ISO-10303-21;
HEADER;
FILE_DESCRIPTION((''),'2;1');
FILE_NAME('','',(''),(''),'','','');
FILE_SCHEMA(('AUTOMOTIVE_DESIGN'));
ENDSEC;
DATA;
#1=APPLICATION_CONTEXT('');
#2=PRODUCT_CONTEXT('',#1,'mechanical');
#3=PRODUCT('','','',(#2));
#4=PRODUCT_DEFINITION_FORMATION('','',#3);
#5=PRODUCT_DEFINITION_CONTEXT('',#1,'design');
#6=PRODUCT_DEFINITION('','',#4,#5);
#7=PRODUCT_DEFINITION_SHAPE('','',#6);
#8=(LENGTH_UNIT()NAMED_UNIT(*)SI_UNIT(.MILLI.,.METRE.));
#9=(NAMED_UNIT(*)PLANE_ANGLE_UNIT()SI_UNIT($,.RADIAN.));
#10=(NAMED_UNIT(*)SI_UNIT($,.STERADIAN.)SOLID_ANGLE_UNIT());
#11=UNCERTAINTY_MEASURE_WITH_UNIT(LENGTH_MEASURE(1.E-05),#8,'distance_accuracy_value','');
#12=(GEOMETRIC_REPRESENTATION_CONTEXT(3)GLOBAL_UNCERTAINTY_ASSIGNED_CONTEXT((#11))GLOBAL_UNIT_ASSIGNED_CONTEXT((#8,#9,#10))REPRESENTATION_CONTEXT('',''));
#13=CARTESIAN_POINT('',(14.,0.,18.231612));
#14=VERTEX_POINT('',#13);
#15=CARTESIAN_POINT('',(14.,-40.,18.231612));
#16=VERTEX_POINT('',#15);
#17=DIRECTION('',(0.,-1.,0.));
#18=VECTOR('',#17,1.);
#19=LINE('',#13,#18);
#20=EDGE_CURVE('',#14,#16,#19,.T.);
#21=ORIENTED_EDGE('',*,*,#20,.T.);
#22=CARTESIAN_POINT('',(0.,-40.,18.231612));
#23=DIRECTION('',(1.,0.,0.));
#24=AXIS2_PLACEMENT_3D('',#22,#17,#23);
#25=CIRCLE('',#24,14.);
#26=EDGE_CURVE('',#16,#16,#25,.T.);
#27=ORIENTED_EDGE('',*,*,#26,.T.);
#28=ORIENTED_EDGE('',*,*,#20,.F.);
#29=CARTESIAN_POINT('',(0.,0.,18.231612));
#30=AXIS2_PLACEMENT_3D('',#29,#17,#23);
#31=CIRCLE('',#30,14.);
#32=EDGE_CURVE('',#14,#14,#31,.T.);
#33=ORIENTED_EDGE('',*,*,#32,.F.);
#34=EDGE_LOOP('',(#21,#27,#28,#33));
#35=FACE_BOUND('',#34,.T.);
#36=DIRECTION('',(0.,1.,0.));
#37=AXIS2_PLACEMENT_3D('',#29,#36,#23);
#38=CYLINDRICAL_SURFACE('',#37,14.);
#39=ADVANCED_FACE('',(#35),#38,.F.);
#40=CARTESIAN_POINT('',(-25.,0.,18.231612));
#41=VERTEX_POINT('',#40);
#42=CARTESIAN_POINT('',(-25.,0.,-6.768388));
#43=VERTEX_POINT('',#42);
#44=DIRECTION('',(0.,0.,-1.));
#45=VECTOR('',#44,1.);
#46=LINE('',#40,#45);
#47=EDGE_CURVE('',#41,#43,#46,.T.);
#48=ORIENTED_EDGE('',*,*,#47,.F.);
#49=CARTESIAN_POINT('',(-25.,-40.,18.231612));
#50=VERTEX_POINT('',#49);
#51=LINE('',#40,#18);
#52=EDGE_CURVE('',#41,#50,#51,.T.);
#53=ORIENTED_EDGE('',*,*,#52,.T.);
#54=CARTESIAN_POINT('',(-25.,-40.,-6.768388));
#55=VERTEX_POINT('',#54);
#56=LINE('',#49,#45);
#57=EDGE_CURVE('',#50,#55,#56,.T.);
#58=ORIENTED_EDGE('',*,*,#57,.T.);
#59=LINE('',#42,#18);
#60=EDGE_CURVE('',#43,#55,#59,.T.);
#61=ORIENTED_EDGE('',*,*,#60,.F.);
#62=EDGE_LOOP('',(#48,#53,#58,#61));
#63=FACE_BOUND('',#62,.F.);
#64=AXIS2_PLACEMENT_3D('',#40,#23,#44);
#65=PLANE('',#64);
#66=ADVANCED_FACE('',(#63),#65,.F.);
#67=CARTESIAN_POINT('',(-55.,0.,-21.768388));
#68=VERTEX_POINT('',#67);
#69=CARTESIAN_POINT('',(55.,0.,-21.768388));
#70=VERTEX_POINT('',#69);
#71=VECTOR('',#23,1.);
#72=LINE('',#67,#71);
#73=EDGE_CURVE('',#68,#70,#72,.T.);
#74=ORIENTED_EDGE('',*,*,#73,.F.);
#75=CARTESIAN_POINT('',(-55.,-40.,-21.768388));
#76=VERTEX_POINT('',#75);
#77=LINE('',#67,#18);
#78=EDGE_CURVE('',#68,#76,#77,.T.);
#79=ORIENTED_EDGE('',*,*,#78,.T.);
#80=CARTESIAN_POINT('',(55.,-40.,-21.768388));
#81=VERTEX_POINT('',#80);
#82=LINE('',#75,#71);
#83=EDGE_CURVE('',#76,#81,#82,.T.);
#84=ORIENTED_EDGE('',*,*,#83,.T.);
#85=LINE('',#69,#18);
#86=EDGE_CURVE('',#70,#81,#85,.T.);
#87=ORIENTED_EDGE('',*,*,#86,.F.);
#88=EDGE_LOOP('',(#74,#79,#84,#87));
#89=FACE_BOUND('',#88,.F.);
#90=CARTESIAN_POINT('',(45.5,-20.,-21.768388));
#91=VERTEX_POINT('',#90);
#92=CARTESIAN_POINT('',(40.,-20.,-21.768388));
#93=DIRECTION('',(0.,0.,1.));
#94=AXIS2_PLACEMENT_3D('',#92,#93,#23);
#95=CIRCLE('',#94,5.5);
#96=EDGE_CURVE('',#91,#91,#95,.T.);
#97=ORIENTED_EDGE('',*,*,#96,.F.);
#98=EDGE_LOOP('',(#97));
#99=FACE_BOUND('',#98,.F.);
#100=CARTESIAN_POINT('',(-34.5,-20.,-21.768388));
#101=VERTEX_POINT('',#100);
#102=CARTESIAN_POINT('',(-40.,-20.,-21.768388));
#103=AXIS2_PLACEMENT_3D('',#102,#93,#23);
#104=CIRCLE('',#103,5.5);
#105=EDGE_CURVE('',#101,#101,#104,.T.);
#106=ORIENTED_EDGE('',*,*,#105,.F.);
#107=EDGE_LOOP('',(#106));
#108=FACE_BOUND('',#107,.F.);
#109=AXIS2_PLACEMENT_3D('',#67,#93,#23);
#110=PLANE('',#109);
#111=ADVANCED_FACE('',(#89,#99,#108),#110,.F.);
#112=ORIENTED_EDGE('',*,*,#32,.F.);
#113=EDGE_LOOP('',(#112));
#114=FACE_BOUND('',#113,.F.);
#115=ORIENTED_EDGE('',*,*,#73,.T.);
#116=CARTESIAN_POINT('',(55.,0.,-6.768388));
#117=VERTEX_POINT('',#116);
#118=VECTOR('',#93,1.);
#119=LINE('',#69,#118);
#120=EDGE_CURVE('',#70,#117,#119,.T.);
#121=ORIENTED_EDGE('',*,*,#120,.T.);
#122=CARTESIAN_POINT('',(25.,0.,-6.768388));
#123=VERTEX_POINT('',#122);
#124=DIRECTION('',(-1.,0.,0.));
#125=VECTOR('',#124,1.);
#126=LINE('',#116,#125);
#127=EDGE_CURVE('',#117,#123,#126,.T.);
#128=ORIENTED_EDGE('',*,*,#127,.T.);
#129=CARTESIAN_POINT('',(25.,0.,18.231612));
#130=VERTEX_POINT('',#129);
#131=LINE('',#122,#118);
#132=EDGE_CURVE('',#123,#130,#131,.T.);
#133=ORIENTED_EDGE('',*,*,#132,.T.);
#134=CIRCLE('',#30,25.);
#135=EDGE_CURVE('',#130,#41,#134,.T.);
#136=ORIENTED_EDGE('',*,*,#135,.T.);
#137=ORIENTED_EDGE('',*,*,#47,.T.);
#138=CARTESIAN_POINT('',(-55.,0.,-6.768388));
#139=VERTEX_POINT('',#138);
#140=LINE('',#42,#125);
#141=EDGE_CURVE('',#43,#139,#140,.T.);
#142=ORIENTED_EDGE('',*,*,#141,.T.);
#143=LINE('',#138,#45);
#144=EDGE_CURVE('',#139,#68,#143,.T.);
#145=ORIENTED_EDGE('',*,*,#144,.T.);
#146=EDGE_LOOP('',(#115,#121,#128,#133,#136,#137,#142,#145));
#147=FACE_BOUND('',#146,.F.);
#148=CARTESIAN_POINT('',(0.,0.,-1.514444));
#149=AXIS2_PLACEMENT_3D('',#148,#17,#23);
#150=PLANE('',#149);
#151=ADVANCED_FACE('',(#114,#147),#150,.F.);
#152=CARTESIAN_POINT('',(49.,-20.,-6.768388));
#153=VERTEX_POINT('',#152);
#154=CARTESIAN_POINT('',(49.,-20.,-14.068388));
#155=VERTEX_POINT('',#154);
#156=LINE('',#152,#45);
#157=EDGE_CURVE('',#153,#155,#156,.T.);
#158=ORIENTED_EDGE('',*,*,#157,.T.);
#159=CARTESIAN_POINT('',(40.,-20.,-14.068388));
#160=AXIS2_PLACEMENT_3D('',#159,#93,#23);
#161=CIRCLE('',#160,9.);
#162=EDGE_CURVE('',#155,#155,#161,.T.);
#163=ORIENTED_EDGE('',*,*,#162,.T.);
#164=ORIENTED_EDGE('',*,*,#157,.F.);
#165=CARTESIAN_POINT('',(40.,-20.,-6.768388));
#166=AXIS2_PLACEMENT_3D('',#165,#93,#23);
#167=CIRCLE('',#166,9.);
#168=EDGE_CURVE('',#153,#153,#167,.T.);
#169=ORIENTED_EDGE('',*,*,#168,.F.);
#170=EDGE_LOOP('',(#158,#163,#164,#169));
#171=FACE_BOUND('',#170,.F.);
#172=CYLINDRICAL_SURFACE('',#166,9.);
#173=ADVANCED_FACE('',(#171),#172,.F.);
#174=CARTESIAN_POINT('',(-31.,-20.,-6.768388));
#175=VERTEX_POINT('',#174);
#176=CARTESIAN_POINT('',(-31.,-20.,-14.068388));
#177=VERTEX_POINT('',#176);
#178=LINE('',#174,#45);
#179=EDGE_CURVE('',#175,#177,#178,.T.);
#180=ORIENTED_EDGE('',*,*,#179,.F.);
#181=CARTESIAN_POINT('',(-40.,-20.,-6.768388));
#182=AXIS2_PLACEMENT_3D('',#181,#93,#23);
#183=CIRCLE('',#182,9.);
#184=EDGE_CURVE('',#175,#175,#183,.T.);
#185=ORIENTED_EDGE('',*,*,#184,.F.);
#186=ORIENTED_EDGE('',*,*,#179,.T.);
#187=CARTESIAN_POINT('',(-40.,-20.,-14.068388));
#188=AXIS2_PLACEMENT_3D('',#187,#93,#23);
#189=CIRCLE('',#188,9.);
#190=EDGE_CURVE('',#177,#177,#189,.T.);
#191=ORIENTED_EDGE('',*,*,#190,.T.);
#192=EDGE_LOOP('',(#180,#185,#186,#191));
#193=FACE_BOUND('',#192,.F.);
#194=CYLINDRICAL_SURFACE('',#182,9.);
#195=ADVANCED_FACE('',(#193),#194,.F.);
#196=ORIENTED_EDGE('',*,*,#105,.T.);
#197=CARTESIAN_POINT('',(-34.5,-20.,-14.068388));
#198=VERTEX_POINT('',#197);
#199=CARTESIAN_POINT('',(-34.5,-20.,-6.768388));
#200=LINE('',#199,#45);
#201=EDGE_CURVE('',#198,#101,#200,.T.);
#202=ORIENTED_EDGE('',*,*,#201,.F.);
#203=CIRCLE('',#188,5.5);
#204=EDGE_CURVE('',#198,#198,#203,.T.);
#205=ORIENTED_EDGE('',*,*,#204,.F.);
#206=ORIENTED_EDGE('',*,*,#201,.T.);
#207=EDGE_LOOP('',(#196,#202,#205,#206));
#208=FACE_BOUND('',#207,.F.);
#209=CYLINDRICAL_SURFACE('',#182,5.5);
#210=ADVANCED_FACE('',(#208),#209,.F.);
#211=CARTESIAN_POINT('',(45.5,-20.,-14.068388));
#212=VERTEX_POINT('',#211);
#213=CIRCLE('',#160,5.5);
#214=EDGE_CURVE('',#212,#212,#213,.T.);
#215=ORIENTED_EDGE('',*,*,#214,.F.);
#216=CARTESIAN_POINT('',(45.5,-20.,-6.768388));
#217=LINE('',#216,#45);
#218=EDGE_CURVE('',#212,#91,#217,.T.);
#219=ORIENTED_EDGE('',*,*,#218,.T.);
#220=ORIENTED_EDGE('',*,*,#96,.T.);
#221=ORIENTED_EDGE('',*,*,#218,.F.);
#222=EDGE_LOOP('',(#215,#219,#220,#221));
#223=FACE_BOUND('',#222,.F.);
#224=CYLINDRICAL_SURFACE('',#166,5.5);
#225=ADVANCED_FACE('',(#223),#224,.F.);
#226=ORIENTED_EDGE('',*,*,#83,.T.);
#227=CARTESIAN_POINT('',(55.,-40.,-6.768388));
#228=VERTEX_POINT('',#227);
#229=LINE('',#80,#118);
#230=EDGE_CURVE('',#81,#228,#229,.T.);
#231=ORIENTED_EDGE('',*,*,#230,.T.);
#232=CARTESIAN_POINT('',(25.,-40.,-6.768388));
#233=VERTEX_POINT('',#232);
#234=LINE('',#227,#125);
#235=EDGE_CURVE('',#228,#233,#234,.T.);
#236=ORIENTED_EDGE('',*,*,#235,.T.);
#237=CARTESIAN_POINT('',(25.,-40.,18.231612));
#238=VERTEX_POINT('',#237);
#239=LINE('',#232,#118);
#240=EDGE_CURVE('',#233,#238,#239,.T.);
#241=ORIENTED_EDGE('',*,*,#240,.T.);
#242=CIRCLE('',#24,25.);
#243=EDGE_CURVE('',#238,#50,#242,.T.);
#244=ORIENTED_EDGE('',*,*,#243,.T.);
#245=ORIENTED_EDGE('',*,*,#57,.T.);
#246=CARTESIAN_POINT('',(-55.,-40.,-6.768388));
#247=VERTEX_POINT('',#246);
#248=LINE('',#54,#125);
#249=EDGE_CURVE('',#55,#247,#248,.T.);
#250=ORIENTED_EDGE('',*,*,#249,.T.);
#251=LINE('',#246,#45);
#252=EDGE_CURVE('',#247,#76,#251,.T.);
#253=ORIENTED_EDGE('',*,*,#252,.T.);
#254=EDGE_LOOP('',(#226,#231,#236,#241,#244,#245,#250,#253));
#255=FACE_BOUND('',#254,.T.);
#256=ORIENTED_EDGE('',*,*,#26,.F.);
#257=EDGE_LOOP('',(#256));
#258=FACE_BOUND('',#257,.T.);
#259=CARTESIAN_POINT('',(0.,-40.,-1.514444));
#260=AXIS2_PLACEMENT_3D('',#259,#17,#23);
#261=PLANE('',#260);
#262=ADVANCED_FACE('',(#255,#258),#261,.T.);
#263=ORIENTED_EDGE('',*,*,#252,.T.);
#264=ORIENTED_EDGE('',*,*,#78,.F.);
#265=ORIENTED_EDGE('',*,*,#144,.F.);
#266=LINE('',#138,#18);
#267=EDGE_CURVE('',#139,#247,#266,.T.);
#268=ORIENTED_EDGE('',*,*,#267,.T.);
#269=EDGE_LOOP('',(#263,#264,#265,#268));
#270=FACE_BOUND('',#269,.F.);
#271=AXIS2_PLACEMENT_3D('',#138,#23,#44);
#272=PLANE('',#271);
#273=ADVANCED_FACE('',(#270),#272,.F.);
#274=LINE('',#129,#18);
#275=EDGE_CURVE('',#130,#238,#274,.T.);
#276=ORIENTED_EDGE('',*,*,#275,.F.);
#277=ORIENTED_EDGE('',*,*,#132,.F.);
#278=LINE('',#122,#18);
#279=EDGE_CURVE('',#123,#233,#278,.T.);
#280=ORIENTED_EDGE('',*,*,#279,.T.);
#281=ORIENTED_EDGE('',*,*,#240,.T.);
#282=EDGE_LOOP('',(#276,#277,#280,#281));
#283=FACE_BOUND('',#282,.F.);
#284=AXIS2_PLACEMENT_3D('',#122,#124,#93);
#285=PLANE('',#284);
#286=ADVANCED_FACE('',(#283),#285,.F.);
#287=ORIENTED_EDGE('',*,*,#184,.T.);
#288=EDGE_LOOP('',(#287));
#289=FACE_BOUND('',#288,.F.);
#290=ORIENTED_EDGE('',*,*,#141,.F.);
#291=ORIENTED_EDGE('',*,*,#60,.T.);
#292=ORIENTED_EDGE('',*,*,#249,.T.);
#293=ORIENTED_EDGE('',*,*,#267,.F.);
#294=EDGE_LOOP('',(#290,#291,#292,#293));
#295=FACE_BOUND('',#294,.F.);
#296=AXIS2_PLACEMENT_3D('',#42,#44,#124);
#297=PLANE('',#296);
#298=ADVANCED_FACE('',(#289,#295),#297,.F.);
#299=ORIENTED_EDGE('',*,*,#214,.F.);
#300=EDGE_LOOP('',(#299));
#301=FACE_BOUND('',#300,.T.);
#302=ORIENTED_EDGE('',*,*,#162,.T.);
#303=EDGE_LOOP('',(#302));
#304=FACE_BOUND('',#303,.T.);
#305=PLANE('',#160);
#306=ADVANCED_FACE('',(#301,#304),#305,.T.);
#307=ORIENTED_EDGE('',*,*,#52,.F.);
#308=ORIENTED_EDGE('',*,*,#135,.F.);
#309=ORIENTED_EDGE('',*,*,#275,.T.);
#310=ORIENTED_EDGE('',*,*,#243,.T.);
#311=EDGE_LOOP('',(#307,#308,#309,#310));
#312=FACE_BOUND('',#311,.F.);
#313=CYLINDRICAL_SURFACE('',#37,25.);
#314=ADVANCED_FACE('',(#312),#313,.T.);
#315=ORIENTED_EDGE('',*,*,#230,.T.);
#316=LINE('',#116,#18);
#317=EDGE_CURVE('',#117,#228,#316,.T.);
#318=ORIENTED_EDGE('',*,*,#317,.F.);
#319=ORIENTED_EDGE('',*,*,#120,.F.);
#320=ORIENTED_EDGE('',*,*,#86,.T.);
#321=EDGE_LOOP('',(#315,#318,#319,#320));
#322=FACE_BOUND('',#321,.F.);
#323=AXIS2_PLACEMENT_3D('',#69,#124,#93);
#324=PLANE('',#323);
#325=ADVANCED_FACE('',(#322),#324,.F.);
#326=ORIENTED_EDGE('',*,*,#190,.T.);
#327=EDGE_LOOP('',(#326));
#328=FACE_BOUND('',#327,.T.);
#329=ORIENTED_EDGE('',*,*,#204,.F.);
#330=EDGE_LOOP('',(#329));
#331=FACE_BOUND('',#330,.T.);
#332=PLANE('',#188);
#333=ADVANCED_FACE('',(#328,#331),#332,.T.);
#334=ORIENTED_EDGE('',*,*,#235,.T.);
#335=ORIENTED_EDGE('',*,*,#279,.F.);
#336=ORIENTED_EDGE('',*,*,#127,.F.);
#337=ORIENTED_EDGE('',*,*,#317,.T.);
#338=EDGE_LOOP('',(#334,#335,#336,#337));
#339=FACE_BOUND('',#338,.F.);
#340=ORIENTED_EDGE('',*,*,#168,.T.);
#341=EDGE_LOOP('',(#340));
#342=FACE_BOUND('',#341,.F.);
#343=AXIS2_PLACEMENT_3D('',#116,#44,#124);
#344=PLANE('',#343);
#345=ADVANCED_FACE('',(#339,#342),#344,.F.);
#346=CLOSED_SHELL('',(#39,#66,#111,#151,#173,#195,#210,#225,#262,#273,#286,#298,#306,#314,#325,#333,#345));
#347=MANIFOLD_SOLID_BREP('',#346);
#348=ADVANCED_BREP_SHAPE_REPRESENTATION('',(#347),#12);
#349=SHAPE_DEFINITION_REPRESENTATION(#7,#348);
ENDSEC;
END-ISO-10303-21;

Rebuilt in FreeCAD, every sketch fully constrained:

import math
import FreeCAD as App
import Part
import Sketcher
from FreeCAD import Vector

doc = App.newDocument("Part")
body = doc.addObject("PartDesign::Body", "Body")

# Sketch on XZ plane
sketch1 = body.newObject("Sketcher::SketchObject", "Sketch")
sketch1.AttachmentSupport = (doc.getObject("XZ_Plane"), [""])
sketch1.MapMode = "FlatFace"
sketch1.addGeometry([
    Part.LineSegment(Vector(-55, -7, 0), Vector(-55, -22, 0)),  # 0
    Part.LineSegment(Vector(-55, -22, 0), Vector(55, -22, 0)),  # 1
    Part.LineSegment(Vector(55, -22, 0), Vector(55, -7, 0)),  # 2
    Part.LineSegment(Vector(55, -7, 0), Vector(25, -7, 0)),  # 3
    Part.LineSegment(Vector(25, -7, 0), Vector(25, 18, 0)),  # 4
    Part.ArcOfCircle(Part.Circle(Vector(0, 18, 0), Vector(0, 0, 1), 25), math.radians(0), math.radians(180)),  # 5
    Part.LineSegment(Vector(-25, 18, 0), Vector(-25, -7, 0)),  # 6
    Part.LineSegment(Vector(-25, -7, 0), Vector(-55, -7, 0)),  # 7
    Part.Circle(Vector(0, 18, 0), Vector(0, 0, 1), 14),  # 8
], False)
sketch1.addConstraint([
    Sketcher.Constraint("Coincident", 0, 2, 1, 1),
    Sketcher.Constraint("Coincident", 1, 2, 2, 1),
    Sketcher.Constraint("Coincident", 2, 2, 3, 1),
    Sketcher.Constraint("Coincident", 3, 2, 4, 1),
    Sketcher.Constraint("Tangent", 4, 2, 5, 1),
    Sketcher.Constraint("Tangent", 5, 2, 6, 1),
    Sketcher.Constraint("Coincident", 6, 2, 7, 1),
    Sketcher.Constraint("Coincident", 7, 2, 0, 1),
    Sketcher.Constraint("Vertical", 0),
    Sketcher.Constraint("Horizontal", 1),
    Sketcher.Constraint("Vertical", 2),
    Sketcher.Constraint("Horizontal", 3),
    Sketcher.Constraint("Vertical", 4),
    Sketcher.Constraint("Vertical", 6),
    Sketcher.Constraint("Horizontal", 7),
    Sketcher.Constraint("Coincident", 8, 3, 5, 3),
    Sketcher.Constraint("Symmetric", 3, 2, 6, 2, -2),
    Sketcher.Constraint("Equal", 3, 7),
    Sketcher.Constraint("Diameter", 8, 28.0),
    Sketcher.Constraint("Radius", 5, 25.0),
    Sketcher.Constraint("DistanceX", 1, 1, 1, 2, 110.0),
    Sketcher.Constraint("DistanceY", 0, 2, 0, 1, 15.0),
    Sketcher.Constraint("DistanceY", 4, 1, 4, 2, 25.0),
    Sketcher.Constraint("DistanceY", -1, 1, 5, 3, 18.231612),
])
pad1 = body.newObject("PartDesign::Pad", "Pad")
pad1.Profile = sketch1
pad1.Length = 40

# Sketch on XY plane
sketch2 = body.newObject("Sketcher::SketchObject", "Sketch001")
sketch2.AttachmentSupport = (doc.getObject("XY_Plane"), [""])
sketch2.MapMode = "FlatFace"
sketch2.AttachmentOffset = App.Placement(Vector(0, 0, -6.768388), App.Rotation())
sketch2.addGeometry([
    Part.Circle(Vector(40, -20, 0), Vector(0, 0, 1), 6),
    Part.Circle(Vector(-40, -20, 0), Vector(0, 0, 1), 6),
], False)
sketch2.addConstraint([
    Sketcher.Constraint("Equal", 0, 1),
    Sketcher.Constraint("Symmetric", 0, 3, 1, 3, -2),
    Sketcher.Constraint("Diameter", 0, 11.0),
    Sketcher.Constraint("DistanceX", -1, 1, 0, 3, 40.0),
    Sketcher.Constraint("DistanceY", 0, 3, -1, 1, 20.0),
])
pocket1 = body.newObject("PartDesign::Pocket", "Pocket")
pocket1.Profile = sketch2
pocket1.Length = 25

# Sketch on XY plane
sketch3 = body.newObject("Sketcher::SketchObject", "Sketch002")
sketch3.AttachmentSupport = (doc.getObject("XY_Plane"), [""])
sketch3.MapMode = "FlatFace"
sketch3.AttachmentOffset = App.Placement(Vector(0, 0, -6.768388), App.Rotation())
sketch3.addGeometry([
    Part.Circle(Vector(-40, -20, 0), Vector(0, 0, 1), 9),
    Part.Circle(Vector(-40, -20, 0), Vector(0, 0, 1), 6),
    Part.Circle(Vector(40, -20, 0), Vector(0, 0, 1), 9),
    Part.Circle(Vector(40, -20, 0), Vector(0, 0, 1), 6),
], False)
sketch3.addConstraint([
    Sketcher.Constraint("Coincident", 1, 3, 0, 3),
    Sketcher.Constraint("Coincident", 3, 3, 2, 3),
    Sketcher.Constraint("Equal", 0, 2),
    Sketcher.Constraint("Equal", 1, 3),
    Sketcher.Constraint("Symmetric", 0, 3, 2, 3, -2),
    Sketcher.Constraint("Diameter", 0, 18.0),
    Sketcher.Constraint("Diameter", 1, 11.0),
    Sketcher.Constraint("DistanceX", 0, 3, -1, 1, 40.0),
    Sketcher.Constraint("DistanceY", 0, 3, -1, 1, 20.0),
])
pocket2 = body.newObject("PartDesign::Pocket", "Pocket001")
pocket2.Profile = sketch3
pocket2.Length = 7.3

doc.recompute()
